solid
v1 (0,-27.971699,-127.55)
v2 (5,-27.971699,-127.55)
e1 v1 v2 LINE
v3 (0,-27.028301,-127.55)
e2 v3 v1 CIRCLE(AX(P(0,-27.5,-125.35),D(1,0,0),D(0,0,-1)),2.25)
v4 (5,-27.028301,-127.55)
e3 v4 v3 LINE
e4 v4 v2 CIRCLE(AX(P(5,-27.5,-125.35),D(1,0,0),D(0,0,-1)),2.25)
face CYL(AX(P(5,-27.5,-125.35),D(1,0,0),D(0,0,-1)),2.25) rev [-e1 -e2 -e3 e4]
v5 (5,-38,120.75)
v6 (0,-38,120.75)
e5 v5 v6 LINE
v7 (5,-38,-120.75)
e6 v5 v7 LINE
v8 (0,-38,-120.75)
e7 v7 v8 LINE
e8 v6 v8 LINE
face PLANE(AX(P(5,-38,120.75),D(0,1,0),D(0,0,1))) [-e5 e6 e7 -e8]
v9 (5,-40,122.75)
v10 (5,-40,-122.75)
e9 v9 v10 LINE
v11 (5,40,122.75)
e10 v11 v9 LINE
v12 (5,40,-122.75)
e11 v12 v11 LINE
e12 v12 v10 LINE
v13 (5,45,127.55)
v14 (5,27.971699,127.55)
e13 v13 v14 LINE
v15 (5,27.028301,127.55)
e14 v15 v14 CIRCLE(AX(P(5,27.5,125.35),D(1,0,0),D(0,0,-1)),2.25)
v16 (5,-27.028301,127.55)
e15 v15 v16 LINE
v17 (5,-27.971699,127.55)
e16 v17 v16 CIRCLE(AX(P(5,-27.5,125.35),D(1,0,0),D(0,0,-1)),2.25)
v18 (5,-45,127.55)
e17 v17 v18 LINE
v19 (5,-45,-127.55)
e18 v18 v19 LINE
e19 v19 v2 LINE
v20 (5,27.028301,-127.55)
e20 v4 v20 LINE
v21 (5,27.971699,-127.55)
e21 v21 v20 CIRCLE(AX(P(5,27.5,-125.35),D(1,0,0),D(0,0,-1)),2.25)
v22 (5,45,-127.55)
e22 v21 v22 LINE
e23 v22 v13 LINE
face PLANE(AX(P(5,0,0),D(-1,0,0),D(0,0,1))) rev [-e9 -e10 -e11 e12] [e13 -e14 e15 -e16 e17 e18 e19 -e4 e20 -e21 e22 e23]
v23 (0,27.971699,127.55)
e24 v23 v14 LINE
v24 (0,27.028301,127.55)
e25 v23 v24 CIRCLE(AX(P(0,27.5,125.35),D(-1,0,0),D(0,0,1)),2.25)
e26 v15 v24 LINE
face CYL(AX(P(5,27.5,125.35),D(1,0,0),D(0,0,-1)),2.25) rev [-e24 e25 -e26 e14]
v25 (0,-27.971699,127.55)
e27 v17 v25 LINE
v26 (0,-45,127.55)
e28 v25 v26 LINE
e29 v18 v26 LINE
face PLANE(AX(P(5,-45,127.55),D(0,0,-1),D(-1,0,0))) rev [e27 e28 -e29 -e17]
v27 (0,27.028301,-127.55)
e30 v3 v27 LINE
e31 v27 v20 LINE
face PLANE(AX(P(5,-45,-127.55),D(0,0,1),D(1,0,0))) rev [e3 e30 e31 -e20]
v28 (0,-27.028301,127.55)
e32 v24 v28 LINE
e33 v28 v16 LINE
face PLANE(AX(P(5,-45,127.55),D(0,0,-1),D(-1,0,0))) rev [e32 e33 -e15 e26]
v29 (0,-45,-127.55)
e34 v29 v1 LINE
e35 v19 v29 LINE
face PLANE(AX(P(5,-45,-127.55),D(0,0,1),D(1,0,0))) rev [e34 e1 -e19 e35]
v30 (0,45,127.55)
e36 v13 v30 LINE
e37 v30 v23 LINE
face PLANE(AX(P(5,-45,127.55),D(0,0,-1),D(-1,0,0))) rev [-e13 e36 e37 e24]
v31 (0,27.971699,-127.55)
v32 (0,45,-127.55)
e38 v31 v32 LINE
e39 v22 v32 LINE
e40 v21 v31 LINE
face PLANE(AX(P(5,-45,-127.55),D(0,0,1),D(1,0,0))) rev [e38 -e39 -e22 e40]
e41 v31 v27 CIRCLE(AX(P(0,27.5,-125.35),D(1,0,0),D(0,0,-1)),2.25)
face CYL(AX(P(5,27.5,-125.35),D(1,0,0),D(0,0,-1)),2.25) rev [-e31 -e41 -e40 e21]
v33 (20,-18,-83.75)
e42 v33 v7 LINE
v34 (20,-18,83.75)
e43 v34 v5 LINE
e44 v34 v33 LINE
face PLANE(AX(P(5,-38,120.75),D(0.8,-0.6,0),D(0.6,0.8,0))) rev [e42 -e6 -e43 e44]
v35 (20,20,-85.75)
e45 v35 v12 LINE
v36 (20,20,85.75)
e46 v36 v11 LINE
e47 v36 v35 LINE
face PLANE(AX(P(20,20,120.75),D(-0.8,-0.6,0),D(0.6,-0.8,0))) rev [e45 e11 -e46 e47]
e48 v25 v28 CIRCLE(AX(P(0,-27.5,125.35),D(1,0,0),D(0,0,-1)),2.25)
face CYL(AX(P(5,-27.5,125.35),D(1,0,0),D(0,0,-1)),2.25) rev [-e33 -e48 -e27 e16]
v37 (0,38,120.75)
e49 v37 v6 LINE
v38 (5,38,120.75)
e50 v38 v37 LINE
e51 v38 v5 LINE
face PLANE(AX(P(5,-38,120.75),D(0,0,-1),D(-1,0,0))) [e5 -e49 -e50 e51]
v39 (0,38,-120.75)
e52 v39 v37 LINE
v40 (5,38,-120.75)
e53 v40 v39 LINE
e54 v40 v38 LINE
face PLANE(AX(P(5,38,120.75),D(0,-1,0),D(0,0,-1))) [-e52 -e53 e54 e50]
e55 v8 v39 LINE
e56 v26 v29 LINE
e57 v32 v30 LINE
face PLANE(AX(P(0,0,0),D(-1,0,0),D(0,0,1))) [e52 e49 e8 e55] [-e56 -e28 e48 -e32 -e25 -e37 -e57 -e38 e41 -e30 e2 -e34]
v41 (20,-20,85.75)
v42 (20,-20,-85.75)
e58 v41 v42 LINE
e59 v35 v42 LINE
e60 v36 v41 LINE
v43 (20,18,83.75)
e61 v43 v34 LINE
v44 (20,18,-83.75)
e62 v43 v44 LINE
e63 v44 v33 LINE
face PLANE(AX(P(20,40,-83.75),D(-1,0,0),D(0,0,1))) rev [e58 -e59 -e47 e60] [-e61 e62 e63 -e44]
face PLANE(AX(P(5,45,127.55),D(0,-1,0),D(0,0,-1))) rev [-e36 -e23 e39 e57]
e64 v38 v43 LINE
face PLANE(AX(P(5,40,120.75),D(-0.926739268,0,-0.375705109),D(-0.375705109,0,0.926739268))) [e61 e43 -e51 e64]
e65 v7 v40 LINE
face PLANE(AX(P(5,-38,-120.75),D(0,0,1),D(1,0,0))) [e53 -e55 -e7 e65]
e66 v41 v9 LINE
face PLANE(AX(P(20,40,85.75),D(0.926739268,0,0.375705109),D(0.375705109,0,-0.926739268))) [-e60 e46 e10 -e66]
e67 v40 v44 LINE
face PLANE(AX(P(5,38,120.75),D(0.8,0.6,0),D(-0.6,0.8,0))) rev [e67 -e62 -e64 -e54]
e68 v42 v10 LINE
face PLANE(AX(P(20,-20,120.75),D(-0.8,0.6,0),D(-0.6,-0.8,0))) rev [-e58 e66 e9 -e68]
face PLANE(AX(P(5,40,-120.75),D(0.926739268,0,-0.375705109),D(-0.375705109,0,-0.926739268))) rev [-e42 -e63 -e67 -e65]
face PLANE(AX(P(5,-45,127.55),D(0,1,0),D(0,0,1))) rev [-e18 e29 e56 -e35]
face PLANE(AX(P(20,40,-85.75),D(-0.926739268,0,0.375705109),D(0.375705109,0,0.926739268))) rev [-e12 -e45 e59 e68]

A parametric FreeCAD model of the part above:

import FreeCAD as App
import Part
import Sketcher
from FreeCAD import Vector


def add_polygon(sketch, points):
    """Adds a closed chain of lines whose ends are joined by coincident constraints."""
    first, n = sketch.GeometryCount, len(points)
    for a, b in zip(points, points[1:] + points[:1]):
        sketch.addGeometry(Part.LineSegment(App.Vector(*a, 0), App.Vector(*b, 0)), False)
    for i in range(n):
        sketch.addConstraint(Sketcher.Constraint("Coincident", first + i, 2, first + (i + 1) % n, 1))

doc = App.newDocument("Part")
body = doc.addObject("PartDesign::Body", "Body")

# Sketch on YZ plane
sketch1 = doc.addObject("Sketcher::SketchObject", "Sketch")
body.addObject(sketch1)
sketch1.AttachmentSupport = (doc.YZ_Plane, [""])
sketch1.MapMode = "FlatFace"
add_polygon(sketch1, [(45, 128), (-45, 128), (-45, -128), (45, -128)])  # lines 0-3
add_polygon(sketch1, [(-38, -121), (-38, 121), (38, 121), (38, -121)])  # lines 4-7
sketch1.addConstraint([
    Sketcher.Constraint("Horizontal", 0),
    Sketcher.Constraint("Vertical", 1),
    Sketcher.Constraint("Horizontal", 2),
    Sketcher.Constraint("Vertical", 3),
    Sketcher.Constraint("Vertical", 4),
    Sketcher.Constraint("Horizontal", 5),
    Sketcher.Constraint("Vertical", 6),
    Sketcher.Constraint("Horizontal", 7),
    Sketcher.Constraint("Symmetric", 0, 2, 2, 2, -1, 1),
    Sketcher.Constraint("Symmetric", 4, 2, 6, 2, -1, 1),
    Sketcher.Constraint("DistanceX", 0, 2, 0, 1, 90.0),
    Sketcher.Constraint("DistanceX", 5, 1, 5, 2, 76.0),
    Sketcher.Constraint("DistanceY", 1, 2, 1, 1, 255.1),
    Sketcher.Constraint("DistanceY", 4, 1, 4, 2, 241.5),
])
pad1 = doc.addObject("PartDesign::Pad", "Pad")
body.addObject(pad1)
pad1.Profile = sketch1
pad1.Length = 5

# Sketch on XZ plane
sketch2 = doc.addObject("Sketcher::SketchObject", "Sketch001")
body.addObject(sketch2)
sketch2.AttachmentSupport = (doc.XZ_Plane, [""])
sketch2.MapMode = "FlatFace"
sketch2.AttachmentOffset = App.Placement(Vector(0, 0, 38), App.Rotation())
add_polygon(sketch2, [(5, -120.8), (20, -83.8), (20, -85.8), (5, -122.8)])  # lines 0-3
sketch2.addConstraint([
    Sketcher.Constraint("Vertical", 1),
    Sketcher.Constraint("Vertical", 3),
    Sketcher.Constraint("Parallel", 0, 2),
    Sketcher.Constraint("DistanceY", 1, 2, 1, 1, 2.0),
    Sketcher.Constraint("DistanceX", -1, 1, 0, 2, 20.0),
    Sketcher.Constraint("DistanceX", -1, 1, 2, 2, 5.0),
    Sketcher.Constraint("DistanceY", 2, 2, 1, 2, 37.0),
    Sketcher.Constraint("DistanceY", 0, 2, -1, 1, 83.75),
])
pad2 = doc.addObject("PartDesign::Pad", "Pad001")
body.addObject(pad2)
pad2.Profile = sketch2
pad2.Length = 78
pad2.Reversed = True

# Sketch on XZ plane
sketch3 = doc.addObject("Sketcher::SketchObject", "Sketch002")
body.addObject(sketch3)
sketch3.AttachmentSupport = (doc.XZ_Plane, [""])
sketch3.MapMode = "FlatFace"
sketch3.AttachmentOffset = App.Placement(Vector(0, 0, 38), App.Rotation())
add_polygon(sketch3, [(5, -122.8), (20, -85.8), (20, -83.8), (5, -120.8)])  # lines 0-3
sketch3.addConstraint([
    Sketcher.Constraint("Vertical", 1),
    Sketcher.Constraint("Vertical", 3),
    Sketcher.Constraint("Parallel", 0, 2),
    Sketcher.Constraint("DistanceY", 1, 1, 1, 2, 2.0),
    Sketcher.Constraint("DistanceX", -1, 1, 0, 2, 20.0),
    Sketcher.Constraint("DistanceX", -1, 1, 2, 2, 5.0),
    Sketcher.Constraint("DistanceY", 2, 2, 0, 2, 35.0),
    Sketcher.Constraint("DistanceY", 0, 2, -1, 1, 85.75),
])
pad3 = doc.addObject("PartDesign::Pad", "Pad002")
body.addObject(pad3)
pad3.Profile = sketch3
pad3.Length = 2
doc.recompute()

mirrored = doc.addObject("PartDesign::Mirrored", "Mirrored")
body.addObject(mirrored)
mirrored.Originals = [pad2, pad3]
mirrored.MirrorPlane = (doc.XY_Plane, [""])
body.Tip = mirrored

# Sketch on XY plane
sketch4 = doc.addObject("Sketcher::SketchObject", "Sketch003")
body.addObject(sketch4)
sketch4.AttachmentSupport = (doc.XY_Plane, [""])
sketch4.MapMode = "FlatFace"
sketch4.AttachmentOffset = App.Placement(Vector(0, 0, -120.75), App.Rotation())
add_polygon(sketch4, [(5, 38), (20, 18), (20, 20), (5, 40)])  # lines 0-3
add_polygon(sketch4, [(5, -38), (5, -40), (20, -20), (20, -18)])  # lines 4-7
sketch4.addConstraint([
    Sketcher.Constraint("Vertical", 1),
    Sketcher.Constraint("Vertical", 3),
    Sketcher.Constraint("Vertical", 4),
    Sketcher.Constraint("Vertical", 6),
    Sketcher.Constraint("Symmetric", 2, 2, 4, 2, -1),
    Sketcher.Constraint("Symmetric", 1, 2, 5, 2, -1),
    Sketcher.Constraint("Parallel", 0, 2),
    Sketcher.Constraint("Parallel", 5, 7),
    Sketcher.Constraint("Equal", 3, 4),
    Sketcher.Constraint("DistanceY", 1, 1, 1, 2, 2.0),
    Sketcher.Constraint("Distance", 0, 25.0),
    Sketcher.Constraint("DistanceX", -1, 1, 0, 2, 20.0),
    Sketcher.Constraint("DistanceY", -1, 1, 0, 2, 18.0),
    Sketcher.Constraint("DistanceX", -1, 1, 2, 2, 5.0),
])
pad4 = doc.addObject("PartDesign::Pad", "Pad003")
body.addObject(pad4)
pad4.Profile = sketch4
pad4.Length = 241.5

# Sketch on XZ plane
sketch5 = doc.addObject("Sketcher::SketchObject", "Sketch004")
body.addObject(sketch5)
sketch5.AttachmentSupport = (doc.XZ_Plane, [""])
sketch5.MapMode = "FlatFace"
sketch5.AttachmentOffset = App.Placement(Vector(0, 0, 45), App.Rotation())
add_polygon(sketch5, [(6, -121), (20, -121), (20, -86)])  # lines 0-2
add_polygon(sketch5, [(20, 121), (6, 121), (20, 86)])  # lines 3-5
sketch5.addConstraint([
    Sketcher.Constraint("Horizontal", 0),
    Sketcher.Constraint("Vertical", 1),
    Sketcher.Constraint("Horizontal", 3),
    Sketcher.Constraint("Vertical", 5),
    Sketcher.Constraint("Symmetric", 2, 2, 3, 2, -1),
    Sketcher.Constraint("Symmetric", 1, 2, 4, 2, -1),
    Sketcher.Constraint("DistanceY", 1, 1, 1, 2, 35.0),
    Sketcher.Constraint("DistanceX", -1, 1, 0, 2, 20.0),
    Sketcher.Constraint("DistanceY", 1, 2, 3, 2, 206.5),
    Sketcher.Constraint("DistanceX", 0, 1, 0, 2, 14.189189),
])
pocket1 = doc.addObject("PartDesign::Pocket", "Pocket")
body.addObject(pocket1)
pocket1.Profile = sketch5
pocket1.Length = 141

# Sketch on XY plane
sketch6 = doc.addObject("Sketcher::SketchObject", "Sketch005")
body.addObject(sketch6)
sketch6.AttachmentSupport = (doc.XY_Plane, [""])
sketch6.MapMode = "FlatFace"
add_polygon(sketch6, [(5, 40), (20, 20), (20, 40)])  # lines 0-2
sketch6.addConstraint([
    Sketcher.Constraint("Vertical", 1),
    Sketcher.Constraint("Horizontal", 2),
    Sketcher.Constraint("DistanceX", 2, 2, 2, 1, 15.0),
    Sketcher.Constraint("DistanceY", 1, 1, 1, 2, 20.0),
    Sketcher.Constraint("DistanceX", -1, 1, 0, 2, 20.0),
    Sketcher.Constraint("DistanceY", -1, 1, 0, 2, 20.0),
])
pocket2 = doc.addObject("PartDesign::Pocket", "Pocket001")
body.addObject(pocket2)
pocket2.Profile = sketch6
pocket2.Length = 282
pocket2.Midplane = True
doc.recompute()

mirrored2 = doc.addObject("PartDesign::Mirrored", "Mirrored001")
body.addObject(mirrored2)
mirrored2.Originals = [pocket2]
mirrored2.MirrorPlane = (doc.XZ_Plane, [""])
body.Tip = mirrored2

# Sketch on YZ plane
sketch7 = doc.addObject("Sketcher::SketchObject", "Sketch006")
body.addObject(sketch7)
sketch7.AttachmentSupport = (doc.YZ_Plane, [""])
sketch7.MapMode = "FlatFace"
sketch7.AttachmentOffset = App.Placement(Vector(0, 0, 5), App.Rotation())
sketch7.addGeometry([
    Part.Circle(Vector(27.5, 125.3, 0), Vector(0, 0, 1), 2.2),
    Part.Circle(Vector(-27.5, 125.3, 0), Vector(0, 0, 1), 2.2),
], False)
sketch7.addConstraint([
    Sketcher.Constraint("Equal", 0, 1),
    Sketcher.Constraint("Symmetric", 0, 3, 1, 3, -2),
    Sketcher.Constraint("Diameter", 0, 4.5),
    Sketcher.Constraint("DistanceX", 1, 3, 0, 3, 55.0),
    Sketcher.Constraint("DistanceY", -1, 1, 0, 3, 125.35),
])
doc.recompute()
hole = doc.addObject("PartDesign::Hole", "Hole")
body.addObject(hole)
hole.Profile = sketch7
hole.ThreadType = "None"
hole.Diameter = 4.5
hole.DepthType = "ThroughAll"
doc.recompute()

mirrored3 = doc.addObject("PartDesign::Mirrored", "Mirrored002")
body.addObject(mirrored3)
mirrored3.Originals = [hole]
mirrored3.MirrorPlane = (doc.XY_Plane, [""])
body.Tip = mirrored3

doc.recompute()
